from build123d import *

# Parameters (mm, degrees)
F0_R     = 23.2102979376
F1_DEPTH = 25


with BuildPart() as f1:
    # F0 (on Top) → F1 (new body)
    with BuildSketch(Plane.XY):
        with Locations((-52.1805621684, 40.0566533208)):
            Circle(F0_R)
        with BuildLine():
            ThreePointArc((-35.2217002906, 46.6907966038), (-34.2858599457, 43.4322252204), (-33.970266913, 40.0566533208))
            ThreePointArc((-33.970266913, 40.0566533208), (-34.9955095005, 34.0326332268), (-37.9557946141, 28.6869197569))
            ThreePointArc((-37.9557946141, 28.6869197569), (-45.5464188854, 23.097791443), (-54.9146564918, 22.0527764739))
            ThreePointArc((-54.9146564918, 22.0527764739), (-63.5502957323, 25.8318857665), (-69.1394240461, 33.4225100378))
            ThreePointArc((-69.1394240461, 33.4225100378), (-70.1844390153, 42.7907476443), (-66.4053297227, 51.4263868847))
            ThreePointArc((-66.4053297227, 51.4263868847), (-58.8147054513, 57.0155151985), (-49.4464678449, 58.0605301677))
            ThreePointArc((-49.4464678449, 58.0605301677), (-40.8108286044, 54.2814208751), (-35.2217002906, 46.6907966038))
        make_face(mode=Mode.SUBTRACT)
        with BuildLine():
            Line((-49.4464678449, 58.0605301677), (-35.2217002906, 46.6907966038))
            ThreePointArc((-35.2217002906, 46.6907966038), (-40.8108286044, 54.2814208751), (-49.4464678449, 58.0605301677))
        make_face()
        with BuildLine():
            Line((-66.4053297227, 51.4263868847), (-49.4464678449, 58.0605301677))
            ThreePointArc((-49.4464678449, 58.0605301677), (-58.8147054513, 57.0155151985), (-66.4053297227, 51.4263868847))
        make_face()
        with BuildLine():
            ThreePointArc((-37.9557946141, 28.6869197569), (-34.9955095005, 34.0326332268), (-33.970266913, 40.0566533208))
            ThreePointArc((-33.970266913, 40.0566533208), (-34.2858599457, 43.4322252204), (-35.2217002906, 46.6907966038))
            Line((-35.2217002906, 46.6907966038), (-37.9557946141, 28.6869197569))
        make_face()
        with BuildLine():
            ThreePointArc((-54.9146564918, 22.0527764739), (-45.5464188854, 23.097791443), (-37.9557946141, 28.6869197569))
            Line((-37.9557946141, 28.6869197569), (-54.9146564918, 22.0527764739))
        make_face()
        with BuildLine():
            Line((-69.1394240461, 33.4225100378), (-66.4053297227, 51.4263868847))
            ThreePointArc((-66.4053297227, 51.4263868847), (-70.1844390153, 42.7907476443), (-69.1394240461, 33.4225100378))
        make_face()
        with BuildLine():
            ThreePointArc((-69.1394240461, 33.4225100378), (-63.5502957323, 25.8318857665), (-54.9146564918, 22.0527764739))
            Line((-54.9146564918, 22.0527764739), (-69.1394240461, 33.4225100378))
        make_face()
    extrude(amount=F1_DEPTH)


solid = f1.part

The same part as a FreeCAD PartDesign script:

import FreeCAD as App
import Part
import Sketcher

V = App.Vector
Q = App.Units.Quantity


def add_polygon(sketch, points):
    """Adds a closed chain of lines whose ends are joined by coincident constraints."""
    first, n = sketch.GeometryCount, len(points)
    for a, b in zip(points, points[1:] + points[:1]):
        sketch.addGeometry(Part.LineSegment(App.Vector(*a, 0), App.Vector(*b, 0)), False)
    for i in range(n):
        sketch.addConstraint(Sketcher.Constraint("Coincident", first + i, 2, first + (i + 1) % n, 1))

doc = App.newDocument("Part")
body = doc.addObject("PartDesign::Body", "Body")

# Sketch on XY plane
sketch1 = body.newObject("Sketcher::SketchObject", "Sketch")
sketch1.AttachmentSupport = (doc.getObject("XY_Plane"), [""])
sketch1.MapMode = "FlatFace"
sketch1.addGeometry(Part.Circle(V(-52, 40, 0), V(0, 0, 1), 23), False)  # 0
add_polygon(sketch1, [(-49, 58), (-35, 47), (-38, 29), (-55, 22), (-69, 33), (-66, 51)])  # lines 1-6
sketch1.addConstraint(Sketcher.Constraint("Parallel", 1, 4))
sketch1.addConstraint(Sketcher.Constraint("Parallel", 2, 5))
sketch1.addConstraint(Sketcher.Constraint("Parallel", 3, 6))
sketch1.addConstraint(Sketcher.Constraint("Equal", 1, 2))
sketch1.addConstraint(Sketcher.Constraint("Equal", 2, 3))
sketch1.addConstraint(Sketcher.Constraint("Equal", 3, 4))
sketch1.addConstraint(Sketcher.Constraint("Diameter", 0, Q("46.420596 mm")))
sketch1.addConstraint(Sketcher.Constraint("DistanceX", 1, 2, -1, 1, Q("35.2217 mm")))
sketch1.addConstraint(Sketcher.Constraint("DistanceY", -1, 1, 2, 2, Q("28.68692 mm")))
sketch1.addConstraint(Sketcher.Constraint("DistanceY", -1, 1, 4, 2, Q("33.42251 mm")))
sketch1.addConstraint(Sketcher.Constraint("DistanceX", 5, 2, -1, 1, Q("66.40533 mm")))
sketch1.addConstraint(Sketcher.Constraint("DistanceY", -1, 1, 6, 2, Q("58.06053 mm")))
sketch1.addConstraint(Sketcher.Constraint("DistanceX", 0, 3, 1, 2, Q("16.958862 mm")))
sketch1.addConstraint(Sketcher.Constraint("DistanceX", 3, 2, 2, 2, Q("16.958862 mm")))
sketch1.addConstraint(Sketcher.Constraint("DistanceY", -1, 1, 0, 3, Q("40.056653 mm")))
pad1 = body.newObject("PartDesign::Pad", "Pad")
pad1.Profile = sketch1
pad1.Length = 25

doc.recompute()
